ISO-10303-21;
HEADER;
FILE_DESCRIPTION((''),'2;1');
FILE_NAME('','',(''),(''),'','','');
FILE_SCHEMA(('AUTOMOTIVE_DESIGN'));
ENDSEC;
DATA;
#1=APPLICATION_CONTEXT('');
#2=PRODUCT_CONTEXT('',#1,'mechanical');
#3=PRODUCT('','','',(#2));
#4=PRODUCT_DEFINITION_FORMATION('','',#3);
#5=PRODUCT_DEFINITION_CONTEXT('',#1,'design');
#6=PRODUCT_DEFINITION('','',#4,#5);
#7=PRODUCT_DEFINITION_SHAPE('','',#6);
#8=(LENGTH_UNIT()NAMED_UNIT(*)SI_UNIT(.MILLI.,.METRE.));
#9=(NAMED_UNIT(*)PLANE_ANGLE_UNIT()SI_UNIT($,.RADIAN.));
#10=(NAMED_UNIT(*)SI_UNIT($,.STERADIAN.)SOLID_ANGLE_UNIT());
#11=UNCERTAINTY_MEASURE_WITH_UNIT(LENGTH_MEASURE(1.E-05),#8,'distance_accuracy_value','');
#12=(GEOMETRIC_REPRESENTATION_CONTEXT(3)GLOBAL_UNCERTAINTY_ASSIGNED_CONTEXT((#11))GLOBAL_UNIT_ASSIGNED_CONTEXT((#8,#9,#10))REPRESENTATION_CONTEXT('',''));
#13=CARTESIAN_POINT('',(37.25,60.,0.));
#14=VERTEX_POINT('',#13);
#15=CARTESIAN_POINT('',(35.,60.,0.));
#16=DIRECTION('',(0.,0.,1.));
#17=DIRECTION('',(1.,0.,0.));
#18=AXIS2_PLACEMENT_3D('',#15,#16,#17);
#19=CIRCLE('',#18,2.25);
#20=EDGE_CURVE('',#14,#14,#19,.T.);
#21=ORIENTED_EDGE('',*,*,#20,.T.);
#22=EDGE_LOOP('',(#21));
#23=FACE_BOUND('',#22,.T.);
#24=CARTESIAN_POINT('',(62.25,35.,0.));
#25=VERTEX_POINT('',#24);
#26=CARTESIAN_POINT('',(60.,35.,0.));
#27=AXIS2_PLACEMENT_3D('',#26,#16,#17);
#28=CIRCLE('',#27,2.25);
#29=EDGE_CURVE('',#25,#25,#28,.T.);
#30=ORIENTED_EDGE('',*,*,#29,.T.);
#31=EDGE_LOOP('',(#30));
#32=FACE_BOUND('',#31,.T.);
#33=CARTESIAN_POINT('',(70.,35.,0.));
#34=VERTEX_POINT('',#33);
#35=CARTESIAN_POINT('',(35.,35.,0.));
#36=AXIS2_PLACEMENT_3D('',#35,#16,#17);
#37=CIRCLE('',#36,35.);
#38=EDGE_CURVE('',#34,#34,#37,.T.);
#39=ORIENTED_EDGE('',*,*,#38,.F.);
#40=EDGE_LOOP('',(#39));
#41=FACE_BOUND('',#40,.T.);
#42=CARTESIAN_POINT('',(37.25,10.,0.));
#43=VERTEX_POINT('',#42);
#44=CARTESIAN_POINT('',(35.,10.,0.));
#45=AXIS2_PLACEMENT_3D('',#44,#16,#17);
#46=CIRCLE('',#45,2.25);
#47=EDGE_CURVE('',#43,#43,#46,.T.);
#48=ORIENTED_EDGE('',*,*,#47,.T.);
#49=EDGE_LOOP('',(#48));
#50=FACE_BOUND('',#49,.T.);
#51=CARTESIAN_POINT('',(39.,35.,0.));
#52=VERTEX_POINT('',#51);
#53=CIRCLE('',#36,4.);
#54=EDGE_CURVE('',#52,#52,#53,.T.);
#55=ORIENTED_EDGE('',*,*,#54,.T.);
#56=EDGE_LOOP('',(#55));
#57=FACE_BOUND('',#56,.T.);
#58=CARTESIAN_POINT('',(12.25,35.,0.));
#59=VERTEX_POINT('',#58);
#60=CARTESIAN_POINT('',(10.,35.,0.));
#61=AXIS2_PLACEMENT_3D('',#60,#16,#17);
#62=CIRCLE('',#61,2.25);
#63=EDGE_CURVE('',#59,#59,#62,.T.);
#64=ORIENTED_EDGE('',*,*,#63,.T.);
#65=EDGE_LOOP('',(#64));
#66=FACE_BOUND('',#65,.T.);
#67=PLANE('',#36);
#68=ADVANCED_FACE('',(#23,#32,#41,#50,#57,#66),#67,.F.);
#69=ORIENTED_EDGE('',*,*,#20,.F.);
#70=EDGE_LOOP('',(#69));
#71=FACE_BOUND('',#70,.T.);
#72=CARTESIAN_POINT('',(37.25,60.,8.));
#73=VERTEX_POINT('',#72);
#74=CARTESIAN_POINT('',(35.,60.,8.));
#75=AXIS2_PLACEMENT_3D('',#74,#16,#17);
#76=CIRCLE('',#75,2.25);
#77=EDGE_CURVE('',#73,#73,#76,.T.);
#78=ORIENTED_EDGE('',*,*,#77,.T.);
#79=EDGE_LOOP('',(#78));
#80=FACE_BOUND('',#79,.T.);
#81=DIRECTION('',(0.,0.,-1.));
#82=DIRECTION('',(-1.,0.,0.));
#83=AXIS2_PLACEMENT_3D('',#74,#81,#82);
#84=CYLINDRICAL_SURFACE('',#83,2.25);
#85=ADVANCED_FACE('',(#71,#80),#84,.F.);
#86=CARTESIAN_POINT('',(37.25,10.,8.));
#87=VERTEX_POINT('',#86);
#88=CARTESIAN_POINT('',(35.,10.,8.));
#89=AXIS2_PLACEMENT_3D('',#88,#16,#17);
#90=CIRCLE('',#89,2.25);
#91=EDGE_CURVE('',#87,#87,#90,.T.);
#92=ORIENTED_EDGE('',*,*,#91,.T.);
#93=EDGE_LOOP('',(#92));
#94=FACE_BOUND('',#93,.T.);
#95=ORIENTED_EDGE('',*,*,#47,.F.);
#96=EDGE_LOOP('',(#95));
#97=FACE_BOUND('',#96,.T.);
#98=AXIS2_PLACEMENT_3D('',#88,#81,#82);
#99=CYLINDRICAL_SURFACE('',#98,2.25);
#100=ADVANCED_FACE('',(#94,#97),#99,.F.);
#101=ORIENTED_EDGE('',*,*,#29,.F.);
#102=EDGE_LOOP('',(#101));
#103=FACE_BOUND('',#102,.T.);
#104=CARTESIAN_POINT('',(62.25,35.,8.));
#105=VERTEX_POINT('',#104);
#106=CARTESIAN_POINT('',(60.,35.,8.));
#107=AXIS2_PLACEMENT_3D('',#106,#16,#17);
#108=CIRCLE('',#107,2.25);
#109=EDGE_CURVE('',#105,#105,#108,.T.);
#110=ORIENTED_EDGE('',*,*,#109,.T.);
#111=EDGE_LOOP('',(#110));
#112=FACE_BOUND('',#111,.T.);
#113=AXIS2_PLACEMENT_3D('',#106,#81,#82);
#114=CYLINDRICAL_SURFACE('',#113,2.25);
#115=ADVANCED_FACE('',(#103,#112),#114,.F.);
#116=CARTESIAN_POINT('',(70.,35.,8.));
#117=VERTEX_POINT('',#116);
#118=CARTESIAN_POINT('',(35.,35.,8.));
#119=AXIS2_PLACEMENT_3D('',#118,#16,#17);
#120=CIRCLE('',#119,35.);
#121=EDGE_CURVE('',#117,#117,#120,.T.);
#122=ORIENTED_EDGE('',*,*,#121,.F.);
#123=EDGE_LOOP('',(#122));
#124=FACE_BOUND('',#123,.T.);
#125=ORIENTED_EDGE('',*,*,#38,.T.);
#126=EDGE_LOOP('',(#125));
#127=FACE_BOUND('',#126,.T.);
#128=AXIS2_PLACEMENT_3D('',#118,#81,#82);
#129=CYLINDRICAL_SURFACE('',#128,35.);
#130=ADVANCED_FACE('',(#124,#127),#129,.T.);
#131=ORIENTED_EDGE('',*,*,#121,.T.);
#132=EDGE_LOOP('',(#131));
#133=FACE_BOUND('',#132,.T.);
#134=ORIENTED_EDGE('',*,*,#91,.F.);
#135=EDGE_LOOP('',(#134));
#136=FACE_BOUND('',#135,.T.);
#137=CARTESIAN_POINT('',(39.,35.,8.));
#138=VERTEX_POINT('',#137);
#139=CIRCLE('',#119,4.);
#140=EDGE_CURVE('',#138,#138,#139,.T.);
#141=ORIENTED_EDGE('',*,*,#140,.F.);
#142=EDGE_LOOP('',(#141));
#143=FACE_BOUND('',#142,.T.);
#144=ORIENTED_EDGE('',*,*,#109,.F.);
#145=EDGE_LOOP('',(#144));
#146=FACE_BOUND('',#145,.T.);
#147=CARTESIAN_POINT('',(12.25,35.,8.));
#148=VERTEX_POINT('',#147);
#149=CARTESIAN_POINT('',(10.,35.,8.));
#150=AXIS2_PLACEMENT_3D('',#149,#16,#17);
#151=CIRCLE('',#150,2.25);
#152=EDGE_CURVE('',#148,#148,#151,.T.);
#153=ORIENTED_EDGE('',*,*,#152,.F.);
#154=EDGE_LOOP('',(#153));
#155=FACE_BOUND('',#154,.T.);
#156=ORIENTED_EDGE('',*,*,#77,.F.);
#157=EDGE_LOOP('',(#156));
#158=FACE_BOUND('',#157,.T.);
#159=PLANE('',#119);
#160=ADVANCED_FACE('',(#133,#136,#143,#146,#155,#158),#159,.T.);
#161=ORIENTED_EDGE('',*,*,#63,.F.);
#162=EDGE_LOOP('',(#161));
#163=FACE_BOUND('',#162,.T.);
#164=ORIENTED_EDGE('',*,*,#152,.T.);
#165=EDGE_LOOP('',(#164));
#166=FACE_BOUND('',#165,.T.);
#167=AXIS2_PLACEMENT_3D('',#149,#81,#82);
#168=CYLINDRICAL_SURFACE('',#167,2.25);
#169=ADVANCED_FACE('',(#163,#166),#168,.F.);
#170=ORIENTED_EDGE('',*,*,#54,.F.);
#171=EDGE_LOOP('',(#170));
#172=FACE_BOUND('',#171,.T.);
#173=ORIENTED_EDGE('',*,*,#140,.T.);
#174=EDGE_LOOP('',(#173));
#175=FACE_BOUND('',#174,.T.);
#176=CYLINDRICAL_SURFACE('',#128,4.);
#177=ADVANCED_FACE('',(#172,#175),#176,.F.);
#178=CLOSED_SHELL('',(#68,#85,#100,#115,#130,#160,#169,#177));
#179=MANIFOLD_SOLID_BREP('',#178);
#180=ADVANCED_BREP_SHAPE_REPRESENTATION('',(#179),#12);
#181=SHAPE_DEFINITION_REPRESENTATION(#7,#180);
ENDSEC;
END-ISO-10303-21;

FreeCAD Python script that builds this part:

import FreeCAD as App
import Part
import Sketcher

doc = App.newDocument("Part")
body = doc.addObject("PartDesign::Body", "Body")

# Sketch on XY plane
sketch1 = body.newObject("Sketcher::SketchObject", "Sketch")
sketch1.AttachmentSupport = (doc.getObject("XY_Plane"), [""])
sketch1.MapMode = "FlatFace"
sketch1.addGeometry(Part.Circle(App.Vector(35, 35, 0), App.Vector(0, 0, 1), 35), False)
sketch1.addGeometry(Part.Circle(App.Vector(35, 10, 0), App.Vector(0, 0, 1), 2.2), False)
sketch1.addGeometry(Part.Circle(App.Vector(10, 35, 0), App.Vector(0, 0, 1), 2.2), False)
sketch1.addGeometry(Part.Circle(App.Vector(35, 35, 0), App.Vector(0, 0, 1), 4), False)
sketch1.addGeometry(Part.Circle(App.Vector(60, 35, 0), App.Vector(0, 0, 1), 2.2), False)
sketch1.addGeometry(Part.Circle(App.Vector(35, 60, 0), App.Vector(0, 0, 1), 2.2), False)
sketch1.addConstraint(Sketcher.Constraint("Coincident", 3, 3, 0, 3))
sketch1.addConstraint(Sketcher.Constraint("Equal", 1, 2))
sketch1.addConstraint(Sketcher.Constraint("Equal", 2, 4))
sketch1.addConstraint(Sketcher.Constraint("Equal", 4, 5))
sketch1.addConstraint(Sketcher.Constraint("Horizontal", 0, 3, 2, 3))
sketch1.addConstraint(Sketcher.Constraint("Horizontal", 3, 3, 4, 3))
sketch1.addConstraint(Sketcher.Constraint("Vertical", 0, 3, 1, 3))
sketch1.addConstraint(Sketcher.Constraint("Vertical", 3, 3, 5, 3))
sketch1.addConstraint(Sketcher.Constraint("Diameter", 0, 70.0))
sketch1.addConstraint(Sketcher.Constraint("Diameter", 3, 8.0))
sketch1.addConstraint(Sketcher.Constraint("Diameter", 1, 4.5))
sketch1.addConstraint(Sketcher.Constraint("DistanceX", -1, 1, 0, 3, 35.0))
sketch1.addConstraint(Sketcher.Constraint("DistanceY", -1, 1, 0, 3, 35.0))
sketch1.addConstraint(Sketcher.Constraint("DistanceY", -1, 1, 1, 3, 10.0))
sketch1.addConstraint(Sketcher.Constraint("DistanceX", -1, 1, 2, 3, 10.0))
sketch1.addConstraint(Sketcher.Constraint("DistanceX", -1, 1, 4, 3, 60.0))
sketch1.addConstraint(Sketcher.Constraint("DistanceY", -1, 1, 5, 3, 60.0))
pad1 = body.newObject("PartDesign::Pad", "Pad")
pad1.Profile = sketch1
pad1.Length = 8

doc.recompute()
